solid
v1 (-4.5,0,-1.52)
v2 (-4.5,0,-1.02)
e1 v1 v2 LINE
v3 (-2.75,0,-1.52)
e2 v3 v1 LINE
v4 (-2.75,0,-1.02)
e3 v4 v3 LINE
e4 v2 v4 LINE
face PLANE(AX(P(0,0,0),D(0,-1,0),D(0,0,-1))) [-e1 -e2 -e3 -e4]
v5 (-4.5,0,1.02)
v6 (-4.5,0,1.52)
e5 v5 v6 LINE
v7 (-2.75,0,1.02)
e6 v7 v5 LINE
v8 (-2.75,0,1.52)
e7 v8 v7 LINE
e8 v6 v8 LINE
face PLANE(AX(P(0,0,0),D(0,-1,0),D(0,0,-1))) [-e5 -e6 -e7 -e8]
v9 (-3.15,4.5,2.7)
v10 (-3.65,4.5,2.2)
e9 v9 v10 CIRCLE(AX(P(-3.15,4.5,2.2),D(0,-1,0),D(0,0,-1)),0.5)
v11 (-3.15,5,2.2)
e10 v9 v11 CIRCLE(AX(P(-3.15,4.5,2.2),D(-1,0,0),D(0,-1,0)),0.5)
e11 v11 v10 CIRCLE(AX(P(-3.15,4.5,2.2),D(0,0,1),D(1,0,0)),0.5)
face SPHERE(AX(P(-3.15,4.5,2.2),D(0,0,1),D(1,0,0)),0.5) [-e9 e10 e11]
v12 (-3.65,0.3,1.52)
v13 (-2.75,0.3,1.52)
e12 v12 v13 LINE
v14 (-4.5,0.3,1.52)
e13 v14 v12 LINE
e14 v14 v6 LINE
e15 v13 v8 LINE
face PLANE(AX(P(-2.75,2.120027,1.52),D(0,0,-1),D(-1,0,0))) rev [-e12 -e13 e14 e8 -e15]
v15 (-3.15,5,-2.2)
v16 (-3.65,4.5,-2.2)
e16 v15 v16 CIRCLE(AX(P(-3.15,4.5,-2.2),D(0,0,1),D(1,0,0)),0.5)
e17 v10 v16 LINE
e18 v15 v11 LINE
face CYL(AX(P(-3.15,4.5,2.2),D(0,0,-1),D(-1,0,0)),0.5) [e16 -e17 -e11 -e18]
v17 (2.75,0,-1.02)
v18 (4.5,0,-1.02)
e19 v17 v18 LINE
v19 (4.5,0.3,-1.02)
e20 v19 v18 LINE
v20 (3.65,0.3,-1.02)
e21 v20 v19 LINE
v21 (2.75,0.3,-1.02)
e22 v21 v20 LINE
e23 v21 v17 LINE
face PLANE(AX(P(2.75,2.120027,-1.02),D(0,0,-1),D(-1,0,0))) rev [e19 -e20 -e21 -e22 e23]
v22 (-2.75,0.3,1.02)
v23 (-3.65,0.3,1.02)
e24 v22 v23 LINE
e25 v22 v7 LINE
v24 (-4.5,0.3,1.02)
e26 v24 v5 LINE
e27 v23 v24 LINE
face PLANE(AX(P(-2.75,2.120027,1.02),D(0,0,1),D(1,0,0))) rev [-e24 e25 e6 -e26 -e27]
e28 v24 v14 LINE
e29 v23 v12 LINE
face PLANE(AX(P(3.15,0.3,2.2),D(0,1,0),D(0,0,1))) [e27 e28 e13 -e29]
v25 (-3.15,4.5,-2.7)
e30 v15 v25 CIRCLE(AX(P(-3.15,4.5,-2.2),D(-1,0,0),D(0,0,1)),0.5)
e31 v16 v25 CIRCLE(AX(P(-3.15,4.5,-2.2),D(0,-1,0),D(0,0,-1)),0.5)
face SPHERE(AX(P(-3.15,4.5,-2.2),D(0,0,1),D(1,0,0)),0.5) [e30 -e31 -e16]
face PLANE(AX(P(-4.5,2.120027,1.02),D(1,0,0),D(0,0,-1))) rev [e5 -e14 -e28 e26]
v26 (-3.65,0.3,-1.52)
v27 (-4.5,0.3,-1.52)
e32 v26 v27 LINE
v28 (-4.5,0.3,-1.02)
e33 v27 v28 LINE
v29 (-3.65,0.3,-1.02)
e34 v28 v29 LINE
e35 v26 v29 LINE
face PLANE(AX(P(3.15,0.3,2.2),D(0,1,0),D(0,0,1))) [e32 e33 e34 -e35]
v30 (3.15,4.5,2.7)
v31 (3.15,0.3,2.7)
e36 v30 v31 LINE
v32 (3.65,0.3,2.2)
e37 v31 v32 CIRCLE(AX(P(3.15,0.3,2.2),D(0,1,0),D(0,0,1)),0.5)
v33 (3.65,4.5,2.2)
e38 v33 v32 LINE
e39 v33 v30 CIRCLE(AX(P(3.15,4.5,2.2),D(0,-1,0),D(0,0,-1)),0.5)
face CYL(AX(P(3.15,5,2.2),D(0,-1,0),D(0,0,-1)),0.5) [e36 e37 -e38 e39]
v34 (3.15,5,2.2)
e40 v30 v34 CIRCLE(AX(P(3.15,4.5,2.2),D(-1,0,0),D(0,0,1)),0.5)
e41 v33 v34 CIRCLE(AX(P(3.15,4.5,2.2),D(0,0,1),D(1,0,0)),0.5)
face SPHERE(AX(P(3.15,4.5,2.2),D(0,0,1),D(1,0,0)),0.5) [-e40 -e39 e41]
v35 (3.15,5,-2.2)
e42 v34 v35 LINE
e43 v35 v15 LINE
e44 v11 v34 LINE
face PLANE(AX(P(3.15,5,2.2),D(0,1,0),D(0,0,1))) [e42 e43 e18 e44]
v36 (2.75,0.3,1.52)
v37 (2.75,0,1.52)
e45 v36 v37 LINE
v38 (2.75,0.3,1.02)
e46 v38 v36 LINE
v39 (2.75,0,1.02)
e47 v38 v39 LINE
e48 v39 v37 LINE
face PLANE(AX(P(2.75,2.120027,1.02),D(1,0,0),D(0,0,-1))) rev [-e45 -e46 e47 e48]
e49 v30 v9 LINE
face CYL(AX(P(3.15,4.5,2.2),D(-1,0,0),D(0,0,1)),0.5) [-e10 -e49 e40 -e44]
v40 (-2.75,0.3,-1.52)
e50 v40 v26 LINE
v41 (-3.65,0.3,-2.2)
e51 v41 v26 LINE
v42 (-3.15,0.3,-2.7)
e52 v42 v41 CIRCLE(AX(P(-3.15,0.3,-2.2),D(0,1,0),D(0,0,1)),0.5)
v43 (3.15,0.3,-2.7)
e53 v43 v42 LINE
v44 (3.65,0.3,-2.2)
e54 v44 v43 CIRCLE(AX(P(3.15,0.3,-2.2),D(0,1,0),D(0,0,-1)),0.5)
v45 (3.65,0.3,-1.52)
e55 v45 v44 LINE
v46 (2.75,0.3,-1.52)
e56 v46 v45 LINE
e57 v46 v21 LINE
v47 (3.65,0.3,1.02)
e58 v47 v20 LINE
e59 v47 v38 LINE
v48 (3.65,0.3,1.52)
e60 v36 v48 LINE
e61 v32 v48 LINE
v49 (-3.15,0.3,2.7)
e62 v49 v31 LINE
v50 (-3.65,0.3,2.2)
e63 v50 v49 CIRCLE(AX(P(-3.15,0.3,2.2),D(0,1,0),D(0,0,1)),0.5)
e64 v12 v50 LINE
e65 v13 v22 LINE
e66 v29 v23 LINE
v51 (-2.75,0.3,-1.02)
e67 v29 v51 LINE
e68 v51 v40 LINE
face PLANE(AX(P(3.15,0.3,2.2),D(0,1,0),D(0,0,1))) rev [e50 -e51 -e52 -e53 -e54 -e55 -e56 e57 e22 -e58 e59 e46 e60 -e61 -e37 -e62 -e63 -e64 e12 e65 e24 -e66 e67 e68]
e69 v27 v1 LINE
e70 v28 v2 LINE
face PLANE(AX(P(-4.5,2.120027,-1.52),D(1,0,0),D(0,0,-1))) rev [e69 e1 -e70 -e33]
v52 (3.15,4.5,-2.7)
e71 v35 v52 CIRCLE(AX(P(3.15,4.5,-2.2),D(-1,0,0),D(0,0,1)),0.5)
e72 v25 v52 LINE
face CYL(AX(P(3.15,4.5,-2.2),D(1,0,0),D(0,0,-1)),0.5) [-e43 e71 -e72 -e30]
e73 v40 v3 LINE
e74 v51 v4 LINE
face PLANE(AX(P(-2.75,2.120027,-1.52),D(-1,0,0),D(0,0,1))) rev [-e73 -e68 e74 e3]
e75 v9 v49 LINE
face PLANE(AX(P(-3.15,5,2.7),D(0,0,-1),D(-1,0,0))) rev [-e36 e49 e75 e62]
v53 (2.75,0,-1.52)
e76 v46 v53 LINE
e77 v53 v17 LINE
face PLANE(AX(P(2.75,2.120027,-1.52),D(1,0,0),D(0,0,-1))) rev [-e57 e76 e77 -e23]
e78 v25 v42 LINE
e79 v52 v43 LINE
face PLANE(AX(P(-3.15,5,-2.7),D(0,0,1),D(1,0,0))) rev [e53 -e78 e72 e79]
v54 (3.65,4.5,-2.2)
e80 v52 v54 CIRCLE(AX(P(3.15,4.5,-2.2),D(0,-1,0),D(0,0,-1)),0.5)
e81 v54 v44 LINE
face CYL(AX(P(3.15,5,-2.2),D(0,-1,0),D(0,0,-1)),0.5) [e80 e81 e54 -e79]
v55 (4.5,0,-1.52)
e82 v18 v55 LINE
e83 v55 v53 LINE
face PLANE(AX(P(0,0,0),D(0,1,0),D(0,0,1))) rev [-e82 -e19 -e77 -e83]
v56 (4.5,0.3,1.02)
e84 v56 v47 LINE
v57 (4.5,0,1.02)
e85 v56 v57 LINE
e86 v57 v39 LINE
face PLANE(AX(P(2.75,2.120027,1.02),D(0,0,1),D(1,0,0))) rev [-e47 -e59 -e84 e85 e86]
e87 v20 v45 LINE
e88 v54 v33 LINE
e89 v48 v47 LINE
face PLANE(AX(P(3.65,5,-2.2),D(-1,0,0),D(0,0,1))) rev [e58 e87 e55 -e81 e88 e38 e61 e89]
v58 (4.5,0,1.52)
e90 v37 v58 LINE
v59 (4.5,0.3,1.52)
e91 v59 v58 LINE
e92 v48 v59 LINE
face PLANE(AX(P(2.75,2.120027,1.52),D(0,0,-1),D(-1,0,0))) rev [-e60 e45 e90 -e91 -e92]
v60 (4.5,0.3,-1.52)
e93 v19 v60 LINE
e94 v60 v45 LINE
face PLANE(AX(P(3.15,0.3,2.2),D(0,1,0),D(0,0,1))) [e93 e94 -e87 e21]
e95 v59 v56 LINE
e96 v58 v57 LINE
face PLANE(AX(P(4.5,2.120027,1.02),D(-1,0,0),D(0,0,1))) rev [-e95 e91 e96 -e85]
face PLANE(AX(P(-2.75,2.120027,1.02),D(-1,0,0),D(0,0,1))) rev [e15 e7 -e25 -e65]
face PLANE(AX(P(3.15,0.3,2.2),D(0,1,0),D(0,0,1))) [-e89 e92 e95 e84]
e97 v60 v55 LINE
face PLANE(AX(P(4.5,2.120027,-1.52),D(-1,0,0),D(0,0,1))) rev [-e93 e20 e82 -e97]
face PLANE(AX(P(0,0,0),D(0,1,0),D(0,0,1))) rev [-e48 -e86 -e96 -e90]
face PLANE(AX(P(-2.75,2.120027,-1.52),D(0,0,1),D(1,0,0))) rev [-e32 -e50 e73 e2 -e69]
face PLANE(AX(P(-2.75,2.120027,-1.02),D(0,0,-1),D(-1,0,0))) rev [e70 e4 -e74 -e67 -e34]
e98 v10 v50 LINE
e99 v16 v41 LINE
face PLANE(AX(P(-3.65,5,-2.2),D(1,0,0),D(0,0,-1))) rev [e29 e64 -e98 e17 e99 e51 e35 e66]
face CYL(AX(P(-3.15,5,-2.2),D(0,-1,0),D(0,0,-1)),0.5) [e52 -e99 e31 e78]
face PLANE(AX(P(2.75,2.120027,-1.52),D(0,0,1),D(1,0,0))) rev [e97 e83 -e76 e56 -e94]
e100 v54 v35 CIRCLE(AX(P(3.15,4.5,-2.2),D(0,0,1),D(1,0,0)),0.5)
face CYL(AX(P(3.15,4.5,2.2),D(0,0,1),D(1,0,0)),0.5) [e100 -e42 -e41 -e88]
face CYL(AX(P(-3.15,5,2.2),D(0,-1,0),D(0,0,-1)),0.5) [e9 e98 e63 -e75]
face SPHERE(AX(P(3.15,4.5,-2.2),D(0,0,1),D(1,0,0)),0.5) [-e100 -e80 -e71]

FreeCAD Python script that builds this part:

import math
import FreeCAD as App
import Part
import Sketcher
from FreeCAD import Vector


def edges_at(feature, points):
    """Names of the edges that pass closest to the given points."""
    edges = feature.Shape.Edges
    near = lambda p: min(range(len(edges)), key=lambda i: edges[i].distToShape(Part.Vertex(*p))[0])
    return sorted({f"Edge{near(p) + 1}" for p in points})

doc = App.newDocument("Part")
params = doc.addObject("Spreadsheet::Sheet", "Params")
for row, (alias, value) in enumerate([
    ("sketch1_radius", "0.5 mm"),
    ("sketch1_width", "6.3 mm"),
    ("sketch1_height", "4.4 mm"),
    ("pad1_length", "4.7 mm"),
    ("sketch2_height", "0.5 mm"),
    ("sketch2_width", "1.75 mm"),
    ("pad2_length", "0.3 mm"),
    ("fillet_radius", "0.5 mm"),
], start=1):
    params.set(f"A{row}", alias)
    params.set(f"B{row}", "=" + value)
    params.setAlias(f"B{row}", alias)

body = doc.addObject("PartDesign::Body", "Body")

# Sketch on XZ plane
sketch1 = doc.addObject("Sketcher::SketchObject", "Sketch")
body.addObject(sketch1)
sketch1.AttachmentSupport = (doc.XZ_Plane, [""])
sketch1.MapMode = "FlatFace"
sketch1.AttachmentOffset = App.Placement(Vector(0, 0, -0.3), App.Rotation())
sketch1.addGeometry(Part.LineSegment(Vector(3.15, -2.7, 0), Vector(-3.15, -2.7, 0)), False)
sketch1.addGeometry(Part.ArcOfCircle(Part.Circle(Vector(-3.15, -2.2, 0), Vector(0, 0, 1), 0.5), math.radians(180), math.radians(270)), False)
sketch1.addGeometry(Part.LineSegment(Vector(-3.65, -2.2, 0), Vector(-3.65, 2.2, 0)), False)
sketch1.addGeometry(Part.ArcOfCircle(Part.Circle(Vector(-3.15, 2.2, 0), Vector(0, 0, 1), 0.5), math.radians(90), math.radians(180)), False)
sketch1.addGeometry(Part.LineSegment(Vector(-3.15, 2.7, 0), Vector(3.15, 2.7, 0)), False)
sketch1.addGeometry(Part.ArcOfCircle(Part.Circle(Vector(3.15, 2.2, 0), Vector(0, 0, 1), 0.5), math.radians(0), math.radians(90)), False)
sketch1.addGeometry(Part.LineSegment(Vector(3.65, 2.2, 0), Vector(3.65, -2.2, 0)), False)
sketch1.addGeometry(Part.ArcOfCircle(Part.Circle(Vector(3.15, -2.2, 0), Vector(0, 0, 1), 0.5), math.radians(-90), math.radians(0)), False)
sketch1.addConstraint(Sketcher.Constraint("Tangent", 0, 2, 1, 2))
sketch1.addConstraint(Sketcher.Constraint("Tangent", 1, 1, 2, 1))
sketch1.addConstraint(Sketcher.Constraint("Tangent", 2, 2, 3, 2))
sketch1.addConstraint(Sketcher.Constraint("Tangent", 3, 1, 4, 1))
sketch1.addConstraint(Sketcher.Constraint("Tangent", 4, 2, 5, 2))
sketch1.addConstraint(Sketcher.Constraint("Tangent", 5, 1, 6, 1))
sketch1.addConstraint(Sketcher.Constraint("Tangent", 6, 2, 7, 2))
sketch1.addConstraint(Sketcher.Constraint("Tangent", 7, 1, 0, 1))
sketch1.addConstraint(Sketcher.Constraint("Horizontal", 0))
sketch1.addConstraint(Sketcher.Constraint("Vertical", 2))
sketch1.addConstraint(Sketcher.Constraint("Horizontal", 4))
sketch1.addConstraint(Sketcher.Constraint("Vertical", 6))
sketch1.addConstraint(Sketcher.Constraint("Equal", 1, 3))
sketch1.addConstraint(Sketcher.Constraint("Equal", 3, 5))
sketch1.addConstraint(Sketcher.Constraint("Equal", 5, 7))
sketch1.addConstraint(Sketcher.Constraint("Symmetric", 1, 3, 5, 3, -1, 1))
sketch1.addConstraint(Sketcher.Constraint("Radius", 1, 0.5))
sketch1.addConstraint(Sketcher.Constraint("DistanceX", 0, 2, 0, 1, 6.3))
sketch1.addConstraint(Sketcher.Constraint("DistanceY", 2, 1, 2, 2, 4.4))
sketch1.setExpression("Constraints[16]", "Params.sketch1_radius")
sketch1.setExpression("Constraints[17]", "Params.sketch1_width")
sketch1.setExpression("Constraints[18]", "Params.sketch1_height")
pad1 = doc.addObject("PartDesign::Pad", "Pad")
body.addObject(pad1)
pad1.Profile = sketch1
pad1.setExpression("Length", "Params.pad1_length")
pad1.Reversed = True

# Sketch on XZ plane
sketch2 = doc.addObject("Sketcher::SketchObject", "Sketch001")
body.addObject(sketch2)
sketch2.AttachmentSupport = (doc.XZ_Plane, [""])
sketch2.MapMode = "FlatFace"
sketch2.addGeometry(Part.LineSegment(Vector(2.75, 1.02, 0), Vector(2.75, 1.52, 0)), False)
sketch2.addGeometry(Part.LineSegment(Vector(2.75, 1.52, 0), Vector(4.5, 1.52, 0)), False)
sketch2.addGeometry(Part.LineSegment(Vector(4.5, 1.52, 0), Vector(4.5, 1.02, 0)), False)
sketch2.addGeometry(Part.LineSegment(Vector(4.5, 1.02, 0), Vector(2.75, 1.02, 0)), False)
sketch2.addGeometry(Part.LineSegment(Vector(2.75, -1.52, 0), Vector(2.75, -1.02, 0)), False)
sketch2.addGeometry(Part.LineSegment(Vector(2.75, -1.02, 0), Vector(4.5, -1.02, 0)), False)
sketch2.addGeometry(Part.LineSegment(Vector(4.5, -1.02, 0), Vector(4.5, -1.52, 0)), False)
sketch2.addGeometry(Part.LineSegment(Vector(4.5, -1.52, 0), Vector(2.75, -1.52, 0)), False)
sketch2.addGeometry(Part.LineSegment(Vector(-4.5, -1.52, 0), Vector(-4.5, -1.02, 0)), False)
sketch2.addGeometry(Part.LineSegment(Vector(-4.5, -1.02, 0), Vector(-2.75, -1.02, 0)), False)
sketch2.addGeometry(Part.LineSegment(Vector(-2.75, -1.02, 0), Vector(-2.75, -1.52, 0)), False)
sketch2.addGeometry(Part.LineSegment(Vector(-2.75, -1.52, 0), Vector(-4.5, -1.52, 0)), False)
sketch2.addGeometry(Part.LineSegment(Vector(-4.5, 1.02, 0), Vector(-4.5, 1.52, 0)), False)
sketch2.addGeometry(Part.LineSegment(Vector(-4.5, 1.52, 0), Vector(-2.75, 1.52, 0)), False)
sketch2.addGeometry(Part.LineSegment(Vector(-2.75, 1.52, 0), Vector(-2.75, 1.02, 0)), False)
sketch2.addGeometry(Part.LineSegment(Vector(-2.75, 1.02, 0), Vector(-4.5, 1.02, 0)), False)
sketch2.addConstraint(Sketcher.Constraint("Coincident", 0, 2, 1, 1))
sketch2.addConstraint(Sketcher.Constraint("Coincident", 1, 2, 2, 1))
sketch2.addConstraint(Sketcher.Constraint("Coincident", 2, 2, 3, 1))
sketch2.addConstraint(Sketcher.Constraint("Coincident", 3, 2, 0, 1))
sketch2.addConstraint(Sketcher.Constraint("Coincident", 4, 2, 5, 1))
sketch2.addConstraint(Sketcher.Constraint("Coincident", 5, 2, 6, 1))
sketch2.addConstraint(Sketcher.Constraint("Coincident", 6, 2, 7, 1))
sketch2.addConstraint(Sketcher.Constraint("Coincident", 7, 2, 4, 1))
sketch2.addConstraint(Sketcher.Constraint("Coincident", 8, 2, 9, 1))
sketch2.addConstraint(Sketcher.Constraint("Coincident", 9, 2, 10, 1))
sketch2.addConstraint(Sketcher.Constraint("Coincident", 10, 2, 11, 1))
sketch2.addConstraint(Sketcher.Constraint("Coincident", 11, 2, 8, 1))
sketch2.addConstraint(Sketcher.Constraint("Coincident", 12, 2, 13, 1))
sketch2.addConstraint(Sketcher.Constraint("Coincident", 13, 2, 14, 1))
sketch2.addConstraint(Sketcher.Constraint("Coincident", 14, 2, 15, 1))
sketch2.addConstraint(Sketcher.Constraint("Coincident", 15, 2, 12, 1))
sketch2.addConstraint(Sketcher.Constraint("Vertical", 0))
sketch2.addConstraint(Sketcher.Constraint("Horizontal", 1))
sketch2.addConstraint(Sketcher.Constraint("Vertical", 2))
sketch2.addConstraint(Sketcher.Constraint("Horizontal", 3))
sketch2.addConstraint(Sketcher.Constraint("Vertical", 4))
sketch2.addConstraint(Sketcher.Constraint("Horizontal", 5))
sketch2.addConstraint(Sketcher.Constraint("Vertical", 6))
sketch2.addConstraint(Sketcher.Constraint("Horizontal", 7))
sketch2.addConstraint(Sketcher.Constraint("Vertical", 8))
sketch2.addConstraint(Sketcher.Constraint("Horizontal", 9))
sketch2.addConstraint(Sketcher.Constraint("Vertical", 10))
sketch2.addConstraint(Sketcher.Constraint("Horizontal", 11))
sketch2.addConstraint(Sketcher.Constraint("Vertical", 12))
sketch2.addConstraint(Sketcher.Constraint("Horizontal", 13))
sketch2.addConstraint(Sketcher.Constraint("Vertical", 14))
sketch2.addConstraint(Sketcher.Constraint("Horizontal", 15))
sketch2.addConstraint(Sketcher.Constraint("Symmetric", 2, 2, 8, 2, -1, 1))
sketch2.addConstraint(Sketcher.Constraint("Symmetric", 0, 2, 10, 2, -1, 1))
sketch2.addConstraint(Sketcher.Constraint("Symmetric", 6, 2, 12, 2, -1, 1))
sketch2.addConstraint(Sketcher.Constraint("Symmetric", 4, 2, 14, 2, -1, 1))
sketch2.addConstraint(Sketcher.Constraint("Symmetric", 5, 2, 8, 2, -2))
sketch2.addConstraint(Sketcher.Constraint("Symmetric", 7, 2, 10, 2, -2))
sketch2.addConstraint(Sketcher.Constraint("DistanceY", 0, 1, 0, 2, 0.5))
sketch2.addConstraint(Sketcher.Constraint("DistanceX", 8, 2, 5, 2, 9.0))
sketch2.addConstraint(Sketcher.Constraint("DistanceX", 1, 1, 1, 2, 1.75))
sketch2.addConstraint(Sketcher.Constraint("DistanceY", -1, 1, 0, 2, 1.52))
sketch2.setExpression("Constraints[38]", "Params.sketch2_height")
sketch2.setExpression("Constraints[40]", "Params.sketch2_width")
pad2 = doc.addObject("PartDesign::Pad", "Pad001")
body.addObject(pad2)
pad2.Profile = sketch2
pad2.setExpression("Length", "Params.pad2_length")
pad2.Reversed = True
doc.recompute()

fillet = doc.addObject("PartDesign::Fillet", "Fillet")
body.addObject(fillet)
fillet.Base = (pad2, edges_at(pad2, [
    (3.504, 5, -2.554),
    (0, 5, -2.7),
    (-3.504, 5, -2.554),
    (-3.65, 5, 0),
    (-3.504, 5, 2.554),
    (0, 5, 2.7),
    (3.504, 5, 2.554),
    (3.65, 5, 0),
]))
fillet.setExpression("Radius", "Params.fillet_radius")

doc.recompute()
